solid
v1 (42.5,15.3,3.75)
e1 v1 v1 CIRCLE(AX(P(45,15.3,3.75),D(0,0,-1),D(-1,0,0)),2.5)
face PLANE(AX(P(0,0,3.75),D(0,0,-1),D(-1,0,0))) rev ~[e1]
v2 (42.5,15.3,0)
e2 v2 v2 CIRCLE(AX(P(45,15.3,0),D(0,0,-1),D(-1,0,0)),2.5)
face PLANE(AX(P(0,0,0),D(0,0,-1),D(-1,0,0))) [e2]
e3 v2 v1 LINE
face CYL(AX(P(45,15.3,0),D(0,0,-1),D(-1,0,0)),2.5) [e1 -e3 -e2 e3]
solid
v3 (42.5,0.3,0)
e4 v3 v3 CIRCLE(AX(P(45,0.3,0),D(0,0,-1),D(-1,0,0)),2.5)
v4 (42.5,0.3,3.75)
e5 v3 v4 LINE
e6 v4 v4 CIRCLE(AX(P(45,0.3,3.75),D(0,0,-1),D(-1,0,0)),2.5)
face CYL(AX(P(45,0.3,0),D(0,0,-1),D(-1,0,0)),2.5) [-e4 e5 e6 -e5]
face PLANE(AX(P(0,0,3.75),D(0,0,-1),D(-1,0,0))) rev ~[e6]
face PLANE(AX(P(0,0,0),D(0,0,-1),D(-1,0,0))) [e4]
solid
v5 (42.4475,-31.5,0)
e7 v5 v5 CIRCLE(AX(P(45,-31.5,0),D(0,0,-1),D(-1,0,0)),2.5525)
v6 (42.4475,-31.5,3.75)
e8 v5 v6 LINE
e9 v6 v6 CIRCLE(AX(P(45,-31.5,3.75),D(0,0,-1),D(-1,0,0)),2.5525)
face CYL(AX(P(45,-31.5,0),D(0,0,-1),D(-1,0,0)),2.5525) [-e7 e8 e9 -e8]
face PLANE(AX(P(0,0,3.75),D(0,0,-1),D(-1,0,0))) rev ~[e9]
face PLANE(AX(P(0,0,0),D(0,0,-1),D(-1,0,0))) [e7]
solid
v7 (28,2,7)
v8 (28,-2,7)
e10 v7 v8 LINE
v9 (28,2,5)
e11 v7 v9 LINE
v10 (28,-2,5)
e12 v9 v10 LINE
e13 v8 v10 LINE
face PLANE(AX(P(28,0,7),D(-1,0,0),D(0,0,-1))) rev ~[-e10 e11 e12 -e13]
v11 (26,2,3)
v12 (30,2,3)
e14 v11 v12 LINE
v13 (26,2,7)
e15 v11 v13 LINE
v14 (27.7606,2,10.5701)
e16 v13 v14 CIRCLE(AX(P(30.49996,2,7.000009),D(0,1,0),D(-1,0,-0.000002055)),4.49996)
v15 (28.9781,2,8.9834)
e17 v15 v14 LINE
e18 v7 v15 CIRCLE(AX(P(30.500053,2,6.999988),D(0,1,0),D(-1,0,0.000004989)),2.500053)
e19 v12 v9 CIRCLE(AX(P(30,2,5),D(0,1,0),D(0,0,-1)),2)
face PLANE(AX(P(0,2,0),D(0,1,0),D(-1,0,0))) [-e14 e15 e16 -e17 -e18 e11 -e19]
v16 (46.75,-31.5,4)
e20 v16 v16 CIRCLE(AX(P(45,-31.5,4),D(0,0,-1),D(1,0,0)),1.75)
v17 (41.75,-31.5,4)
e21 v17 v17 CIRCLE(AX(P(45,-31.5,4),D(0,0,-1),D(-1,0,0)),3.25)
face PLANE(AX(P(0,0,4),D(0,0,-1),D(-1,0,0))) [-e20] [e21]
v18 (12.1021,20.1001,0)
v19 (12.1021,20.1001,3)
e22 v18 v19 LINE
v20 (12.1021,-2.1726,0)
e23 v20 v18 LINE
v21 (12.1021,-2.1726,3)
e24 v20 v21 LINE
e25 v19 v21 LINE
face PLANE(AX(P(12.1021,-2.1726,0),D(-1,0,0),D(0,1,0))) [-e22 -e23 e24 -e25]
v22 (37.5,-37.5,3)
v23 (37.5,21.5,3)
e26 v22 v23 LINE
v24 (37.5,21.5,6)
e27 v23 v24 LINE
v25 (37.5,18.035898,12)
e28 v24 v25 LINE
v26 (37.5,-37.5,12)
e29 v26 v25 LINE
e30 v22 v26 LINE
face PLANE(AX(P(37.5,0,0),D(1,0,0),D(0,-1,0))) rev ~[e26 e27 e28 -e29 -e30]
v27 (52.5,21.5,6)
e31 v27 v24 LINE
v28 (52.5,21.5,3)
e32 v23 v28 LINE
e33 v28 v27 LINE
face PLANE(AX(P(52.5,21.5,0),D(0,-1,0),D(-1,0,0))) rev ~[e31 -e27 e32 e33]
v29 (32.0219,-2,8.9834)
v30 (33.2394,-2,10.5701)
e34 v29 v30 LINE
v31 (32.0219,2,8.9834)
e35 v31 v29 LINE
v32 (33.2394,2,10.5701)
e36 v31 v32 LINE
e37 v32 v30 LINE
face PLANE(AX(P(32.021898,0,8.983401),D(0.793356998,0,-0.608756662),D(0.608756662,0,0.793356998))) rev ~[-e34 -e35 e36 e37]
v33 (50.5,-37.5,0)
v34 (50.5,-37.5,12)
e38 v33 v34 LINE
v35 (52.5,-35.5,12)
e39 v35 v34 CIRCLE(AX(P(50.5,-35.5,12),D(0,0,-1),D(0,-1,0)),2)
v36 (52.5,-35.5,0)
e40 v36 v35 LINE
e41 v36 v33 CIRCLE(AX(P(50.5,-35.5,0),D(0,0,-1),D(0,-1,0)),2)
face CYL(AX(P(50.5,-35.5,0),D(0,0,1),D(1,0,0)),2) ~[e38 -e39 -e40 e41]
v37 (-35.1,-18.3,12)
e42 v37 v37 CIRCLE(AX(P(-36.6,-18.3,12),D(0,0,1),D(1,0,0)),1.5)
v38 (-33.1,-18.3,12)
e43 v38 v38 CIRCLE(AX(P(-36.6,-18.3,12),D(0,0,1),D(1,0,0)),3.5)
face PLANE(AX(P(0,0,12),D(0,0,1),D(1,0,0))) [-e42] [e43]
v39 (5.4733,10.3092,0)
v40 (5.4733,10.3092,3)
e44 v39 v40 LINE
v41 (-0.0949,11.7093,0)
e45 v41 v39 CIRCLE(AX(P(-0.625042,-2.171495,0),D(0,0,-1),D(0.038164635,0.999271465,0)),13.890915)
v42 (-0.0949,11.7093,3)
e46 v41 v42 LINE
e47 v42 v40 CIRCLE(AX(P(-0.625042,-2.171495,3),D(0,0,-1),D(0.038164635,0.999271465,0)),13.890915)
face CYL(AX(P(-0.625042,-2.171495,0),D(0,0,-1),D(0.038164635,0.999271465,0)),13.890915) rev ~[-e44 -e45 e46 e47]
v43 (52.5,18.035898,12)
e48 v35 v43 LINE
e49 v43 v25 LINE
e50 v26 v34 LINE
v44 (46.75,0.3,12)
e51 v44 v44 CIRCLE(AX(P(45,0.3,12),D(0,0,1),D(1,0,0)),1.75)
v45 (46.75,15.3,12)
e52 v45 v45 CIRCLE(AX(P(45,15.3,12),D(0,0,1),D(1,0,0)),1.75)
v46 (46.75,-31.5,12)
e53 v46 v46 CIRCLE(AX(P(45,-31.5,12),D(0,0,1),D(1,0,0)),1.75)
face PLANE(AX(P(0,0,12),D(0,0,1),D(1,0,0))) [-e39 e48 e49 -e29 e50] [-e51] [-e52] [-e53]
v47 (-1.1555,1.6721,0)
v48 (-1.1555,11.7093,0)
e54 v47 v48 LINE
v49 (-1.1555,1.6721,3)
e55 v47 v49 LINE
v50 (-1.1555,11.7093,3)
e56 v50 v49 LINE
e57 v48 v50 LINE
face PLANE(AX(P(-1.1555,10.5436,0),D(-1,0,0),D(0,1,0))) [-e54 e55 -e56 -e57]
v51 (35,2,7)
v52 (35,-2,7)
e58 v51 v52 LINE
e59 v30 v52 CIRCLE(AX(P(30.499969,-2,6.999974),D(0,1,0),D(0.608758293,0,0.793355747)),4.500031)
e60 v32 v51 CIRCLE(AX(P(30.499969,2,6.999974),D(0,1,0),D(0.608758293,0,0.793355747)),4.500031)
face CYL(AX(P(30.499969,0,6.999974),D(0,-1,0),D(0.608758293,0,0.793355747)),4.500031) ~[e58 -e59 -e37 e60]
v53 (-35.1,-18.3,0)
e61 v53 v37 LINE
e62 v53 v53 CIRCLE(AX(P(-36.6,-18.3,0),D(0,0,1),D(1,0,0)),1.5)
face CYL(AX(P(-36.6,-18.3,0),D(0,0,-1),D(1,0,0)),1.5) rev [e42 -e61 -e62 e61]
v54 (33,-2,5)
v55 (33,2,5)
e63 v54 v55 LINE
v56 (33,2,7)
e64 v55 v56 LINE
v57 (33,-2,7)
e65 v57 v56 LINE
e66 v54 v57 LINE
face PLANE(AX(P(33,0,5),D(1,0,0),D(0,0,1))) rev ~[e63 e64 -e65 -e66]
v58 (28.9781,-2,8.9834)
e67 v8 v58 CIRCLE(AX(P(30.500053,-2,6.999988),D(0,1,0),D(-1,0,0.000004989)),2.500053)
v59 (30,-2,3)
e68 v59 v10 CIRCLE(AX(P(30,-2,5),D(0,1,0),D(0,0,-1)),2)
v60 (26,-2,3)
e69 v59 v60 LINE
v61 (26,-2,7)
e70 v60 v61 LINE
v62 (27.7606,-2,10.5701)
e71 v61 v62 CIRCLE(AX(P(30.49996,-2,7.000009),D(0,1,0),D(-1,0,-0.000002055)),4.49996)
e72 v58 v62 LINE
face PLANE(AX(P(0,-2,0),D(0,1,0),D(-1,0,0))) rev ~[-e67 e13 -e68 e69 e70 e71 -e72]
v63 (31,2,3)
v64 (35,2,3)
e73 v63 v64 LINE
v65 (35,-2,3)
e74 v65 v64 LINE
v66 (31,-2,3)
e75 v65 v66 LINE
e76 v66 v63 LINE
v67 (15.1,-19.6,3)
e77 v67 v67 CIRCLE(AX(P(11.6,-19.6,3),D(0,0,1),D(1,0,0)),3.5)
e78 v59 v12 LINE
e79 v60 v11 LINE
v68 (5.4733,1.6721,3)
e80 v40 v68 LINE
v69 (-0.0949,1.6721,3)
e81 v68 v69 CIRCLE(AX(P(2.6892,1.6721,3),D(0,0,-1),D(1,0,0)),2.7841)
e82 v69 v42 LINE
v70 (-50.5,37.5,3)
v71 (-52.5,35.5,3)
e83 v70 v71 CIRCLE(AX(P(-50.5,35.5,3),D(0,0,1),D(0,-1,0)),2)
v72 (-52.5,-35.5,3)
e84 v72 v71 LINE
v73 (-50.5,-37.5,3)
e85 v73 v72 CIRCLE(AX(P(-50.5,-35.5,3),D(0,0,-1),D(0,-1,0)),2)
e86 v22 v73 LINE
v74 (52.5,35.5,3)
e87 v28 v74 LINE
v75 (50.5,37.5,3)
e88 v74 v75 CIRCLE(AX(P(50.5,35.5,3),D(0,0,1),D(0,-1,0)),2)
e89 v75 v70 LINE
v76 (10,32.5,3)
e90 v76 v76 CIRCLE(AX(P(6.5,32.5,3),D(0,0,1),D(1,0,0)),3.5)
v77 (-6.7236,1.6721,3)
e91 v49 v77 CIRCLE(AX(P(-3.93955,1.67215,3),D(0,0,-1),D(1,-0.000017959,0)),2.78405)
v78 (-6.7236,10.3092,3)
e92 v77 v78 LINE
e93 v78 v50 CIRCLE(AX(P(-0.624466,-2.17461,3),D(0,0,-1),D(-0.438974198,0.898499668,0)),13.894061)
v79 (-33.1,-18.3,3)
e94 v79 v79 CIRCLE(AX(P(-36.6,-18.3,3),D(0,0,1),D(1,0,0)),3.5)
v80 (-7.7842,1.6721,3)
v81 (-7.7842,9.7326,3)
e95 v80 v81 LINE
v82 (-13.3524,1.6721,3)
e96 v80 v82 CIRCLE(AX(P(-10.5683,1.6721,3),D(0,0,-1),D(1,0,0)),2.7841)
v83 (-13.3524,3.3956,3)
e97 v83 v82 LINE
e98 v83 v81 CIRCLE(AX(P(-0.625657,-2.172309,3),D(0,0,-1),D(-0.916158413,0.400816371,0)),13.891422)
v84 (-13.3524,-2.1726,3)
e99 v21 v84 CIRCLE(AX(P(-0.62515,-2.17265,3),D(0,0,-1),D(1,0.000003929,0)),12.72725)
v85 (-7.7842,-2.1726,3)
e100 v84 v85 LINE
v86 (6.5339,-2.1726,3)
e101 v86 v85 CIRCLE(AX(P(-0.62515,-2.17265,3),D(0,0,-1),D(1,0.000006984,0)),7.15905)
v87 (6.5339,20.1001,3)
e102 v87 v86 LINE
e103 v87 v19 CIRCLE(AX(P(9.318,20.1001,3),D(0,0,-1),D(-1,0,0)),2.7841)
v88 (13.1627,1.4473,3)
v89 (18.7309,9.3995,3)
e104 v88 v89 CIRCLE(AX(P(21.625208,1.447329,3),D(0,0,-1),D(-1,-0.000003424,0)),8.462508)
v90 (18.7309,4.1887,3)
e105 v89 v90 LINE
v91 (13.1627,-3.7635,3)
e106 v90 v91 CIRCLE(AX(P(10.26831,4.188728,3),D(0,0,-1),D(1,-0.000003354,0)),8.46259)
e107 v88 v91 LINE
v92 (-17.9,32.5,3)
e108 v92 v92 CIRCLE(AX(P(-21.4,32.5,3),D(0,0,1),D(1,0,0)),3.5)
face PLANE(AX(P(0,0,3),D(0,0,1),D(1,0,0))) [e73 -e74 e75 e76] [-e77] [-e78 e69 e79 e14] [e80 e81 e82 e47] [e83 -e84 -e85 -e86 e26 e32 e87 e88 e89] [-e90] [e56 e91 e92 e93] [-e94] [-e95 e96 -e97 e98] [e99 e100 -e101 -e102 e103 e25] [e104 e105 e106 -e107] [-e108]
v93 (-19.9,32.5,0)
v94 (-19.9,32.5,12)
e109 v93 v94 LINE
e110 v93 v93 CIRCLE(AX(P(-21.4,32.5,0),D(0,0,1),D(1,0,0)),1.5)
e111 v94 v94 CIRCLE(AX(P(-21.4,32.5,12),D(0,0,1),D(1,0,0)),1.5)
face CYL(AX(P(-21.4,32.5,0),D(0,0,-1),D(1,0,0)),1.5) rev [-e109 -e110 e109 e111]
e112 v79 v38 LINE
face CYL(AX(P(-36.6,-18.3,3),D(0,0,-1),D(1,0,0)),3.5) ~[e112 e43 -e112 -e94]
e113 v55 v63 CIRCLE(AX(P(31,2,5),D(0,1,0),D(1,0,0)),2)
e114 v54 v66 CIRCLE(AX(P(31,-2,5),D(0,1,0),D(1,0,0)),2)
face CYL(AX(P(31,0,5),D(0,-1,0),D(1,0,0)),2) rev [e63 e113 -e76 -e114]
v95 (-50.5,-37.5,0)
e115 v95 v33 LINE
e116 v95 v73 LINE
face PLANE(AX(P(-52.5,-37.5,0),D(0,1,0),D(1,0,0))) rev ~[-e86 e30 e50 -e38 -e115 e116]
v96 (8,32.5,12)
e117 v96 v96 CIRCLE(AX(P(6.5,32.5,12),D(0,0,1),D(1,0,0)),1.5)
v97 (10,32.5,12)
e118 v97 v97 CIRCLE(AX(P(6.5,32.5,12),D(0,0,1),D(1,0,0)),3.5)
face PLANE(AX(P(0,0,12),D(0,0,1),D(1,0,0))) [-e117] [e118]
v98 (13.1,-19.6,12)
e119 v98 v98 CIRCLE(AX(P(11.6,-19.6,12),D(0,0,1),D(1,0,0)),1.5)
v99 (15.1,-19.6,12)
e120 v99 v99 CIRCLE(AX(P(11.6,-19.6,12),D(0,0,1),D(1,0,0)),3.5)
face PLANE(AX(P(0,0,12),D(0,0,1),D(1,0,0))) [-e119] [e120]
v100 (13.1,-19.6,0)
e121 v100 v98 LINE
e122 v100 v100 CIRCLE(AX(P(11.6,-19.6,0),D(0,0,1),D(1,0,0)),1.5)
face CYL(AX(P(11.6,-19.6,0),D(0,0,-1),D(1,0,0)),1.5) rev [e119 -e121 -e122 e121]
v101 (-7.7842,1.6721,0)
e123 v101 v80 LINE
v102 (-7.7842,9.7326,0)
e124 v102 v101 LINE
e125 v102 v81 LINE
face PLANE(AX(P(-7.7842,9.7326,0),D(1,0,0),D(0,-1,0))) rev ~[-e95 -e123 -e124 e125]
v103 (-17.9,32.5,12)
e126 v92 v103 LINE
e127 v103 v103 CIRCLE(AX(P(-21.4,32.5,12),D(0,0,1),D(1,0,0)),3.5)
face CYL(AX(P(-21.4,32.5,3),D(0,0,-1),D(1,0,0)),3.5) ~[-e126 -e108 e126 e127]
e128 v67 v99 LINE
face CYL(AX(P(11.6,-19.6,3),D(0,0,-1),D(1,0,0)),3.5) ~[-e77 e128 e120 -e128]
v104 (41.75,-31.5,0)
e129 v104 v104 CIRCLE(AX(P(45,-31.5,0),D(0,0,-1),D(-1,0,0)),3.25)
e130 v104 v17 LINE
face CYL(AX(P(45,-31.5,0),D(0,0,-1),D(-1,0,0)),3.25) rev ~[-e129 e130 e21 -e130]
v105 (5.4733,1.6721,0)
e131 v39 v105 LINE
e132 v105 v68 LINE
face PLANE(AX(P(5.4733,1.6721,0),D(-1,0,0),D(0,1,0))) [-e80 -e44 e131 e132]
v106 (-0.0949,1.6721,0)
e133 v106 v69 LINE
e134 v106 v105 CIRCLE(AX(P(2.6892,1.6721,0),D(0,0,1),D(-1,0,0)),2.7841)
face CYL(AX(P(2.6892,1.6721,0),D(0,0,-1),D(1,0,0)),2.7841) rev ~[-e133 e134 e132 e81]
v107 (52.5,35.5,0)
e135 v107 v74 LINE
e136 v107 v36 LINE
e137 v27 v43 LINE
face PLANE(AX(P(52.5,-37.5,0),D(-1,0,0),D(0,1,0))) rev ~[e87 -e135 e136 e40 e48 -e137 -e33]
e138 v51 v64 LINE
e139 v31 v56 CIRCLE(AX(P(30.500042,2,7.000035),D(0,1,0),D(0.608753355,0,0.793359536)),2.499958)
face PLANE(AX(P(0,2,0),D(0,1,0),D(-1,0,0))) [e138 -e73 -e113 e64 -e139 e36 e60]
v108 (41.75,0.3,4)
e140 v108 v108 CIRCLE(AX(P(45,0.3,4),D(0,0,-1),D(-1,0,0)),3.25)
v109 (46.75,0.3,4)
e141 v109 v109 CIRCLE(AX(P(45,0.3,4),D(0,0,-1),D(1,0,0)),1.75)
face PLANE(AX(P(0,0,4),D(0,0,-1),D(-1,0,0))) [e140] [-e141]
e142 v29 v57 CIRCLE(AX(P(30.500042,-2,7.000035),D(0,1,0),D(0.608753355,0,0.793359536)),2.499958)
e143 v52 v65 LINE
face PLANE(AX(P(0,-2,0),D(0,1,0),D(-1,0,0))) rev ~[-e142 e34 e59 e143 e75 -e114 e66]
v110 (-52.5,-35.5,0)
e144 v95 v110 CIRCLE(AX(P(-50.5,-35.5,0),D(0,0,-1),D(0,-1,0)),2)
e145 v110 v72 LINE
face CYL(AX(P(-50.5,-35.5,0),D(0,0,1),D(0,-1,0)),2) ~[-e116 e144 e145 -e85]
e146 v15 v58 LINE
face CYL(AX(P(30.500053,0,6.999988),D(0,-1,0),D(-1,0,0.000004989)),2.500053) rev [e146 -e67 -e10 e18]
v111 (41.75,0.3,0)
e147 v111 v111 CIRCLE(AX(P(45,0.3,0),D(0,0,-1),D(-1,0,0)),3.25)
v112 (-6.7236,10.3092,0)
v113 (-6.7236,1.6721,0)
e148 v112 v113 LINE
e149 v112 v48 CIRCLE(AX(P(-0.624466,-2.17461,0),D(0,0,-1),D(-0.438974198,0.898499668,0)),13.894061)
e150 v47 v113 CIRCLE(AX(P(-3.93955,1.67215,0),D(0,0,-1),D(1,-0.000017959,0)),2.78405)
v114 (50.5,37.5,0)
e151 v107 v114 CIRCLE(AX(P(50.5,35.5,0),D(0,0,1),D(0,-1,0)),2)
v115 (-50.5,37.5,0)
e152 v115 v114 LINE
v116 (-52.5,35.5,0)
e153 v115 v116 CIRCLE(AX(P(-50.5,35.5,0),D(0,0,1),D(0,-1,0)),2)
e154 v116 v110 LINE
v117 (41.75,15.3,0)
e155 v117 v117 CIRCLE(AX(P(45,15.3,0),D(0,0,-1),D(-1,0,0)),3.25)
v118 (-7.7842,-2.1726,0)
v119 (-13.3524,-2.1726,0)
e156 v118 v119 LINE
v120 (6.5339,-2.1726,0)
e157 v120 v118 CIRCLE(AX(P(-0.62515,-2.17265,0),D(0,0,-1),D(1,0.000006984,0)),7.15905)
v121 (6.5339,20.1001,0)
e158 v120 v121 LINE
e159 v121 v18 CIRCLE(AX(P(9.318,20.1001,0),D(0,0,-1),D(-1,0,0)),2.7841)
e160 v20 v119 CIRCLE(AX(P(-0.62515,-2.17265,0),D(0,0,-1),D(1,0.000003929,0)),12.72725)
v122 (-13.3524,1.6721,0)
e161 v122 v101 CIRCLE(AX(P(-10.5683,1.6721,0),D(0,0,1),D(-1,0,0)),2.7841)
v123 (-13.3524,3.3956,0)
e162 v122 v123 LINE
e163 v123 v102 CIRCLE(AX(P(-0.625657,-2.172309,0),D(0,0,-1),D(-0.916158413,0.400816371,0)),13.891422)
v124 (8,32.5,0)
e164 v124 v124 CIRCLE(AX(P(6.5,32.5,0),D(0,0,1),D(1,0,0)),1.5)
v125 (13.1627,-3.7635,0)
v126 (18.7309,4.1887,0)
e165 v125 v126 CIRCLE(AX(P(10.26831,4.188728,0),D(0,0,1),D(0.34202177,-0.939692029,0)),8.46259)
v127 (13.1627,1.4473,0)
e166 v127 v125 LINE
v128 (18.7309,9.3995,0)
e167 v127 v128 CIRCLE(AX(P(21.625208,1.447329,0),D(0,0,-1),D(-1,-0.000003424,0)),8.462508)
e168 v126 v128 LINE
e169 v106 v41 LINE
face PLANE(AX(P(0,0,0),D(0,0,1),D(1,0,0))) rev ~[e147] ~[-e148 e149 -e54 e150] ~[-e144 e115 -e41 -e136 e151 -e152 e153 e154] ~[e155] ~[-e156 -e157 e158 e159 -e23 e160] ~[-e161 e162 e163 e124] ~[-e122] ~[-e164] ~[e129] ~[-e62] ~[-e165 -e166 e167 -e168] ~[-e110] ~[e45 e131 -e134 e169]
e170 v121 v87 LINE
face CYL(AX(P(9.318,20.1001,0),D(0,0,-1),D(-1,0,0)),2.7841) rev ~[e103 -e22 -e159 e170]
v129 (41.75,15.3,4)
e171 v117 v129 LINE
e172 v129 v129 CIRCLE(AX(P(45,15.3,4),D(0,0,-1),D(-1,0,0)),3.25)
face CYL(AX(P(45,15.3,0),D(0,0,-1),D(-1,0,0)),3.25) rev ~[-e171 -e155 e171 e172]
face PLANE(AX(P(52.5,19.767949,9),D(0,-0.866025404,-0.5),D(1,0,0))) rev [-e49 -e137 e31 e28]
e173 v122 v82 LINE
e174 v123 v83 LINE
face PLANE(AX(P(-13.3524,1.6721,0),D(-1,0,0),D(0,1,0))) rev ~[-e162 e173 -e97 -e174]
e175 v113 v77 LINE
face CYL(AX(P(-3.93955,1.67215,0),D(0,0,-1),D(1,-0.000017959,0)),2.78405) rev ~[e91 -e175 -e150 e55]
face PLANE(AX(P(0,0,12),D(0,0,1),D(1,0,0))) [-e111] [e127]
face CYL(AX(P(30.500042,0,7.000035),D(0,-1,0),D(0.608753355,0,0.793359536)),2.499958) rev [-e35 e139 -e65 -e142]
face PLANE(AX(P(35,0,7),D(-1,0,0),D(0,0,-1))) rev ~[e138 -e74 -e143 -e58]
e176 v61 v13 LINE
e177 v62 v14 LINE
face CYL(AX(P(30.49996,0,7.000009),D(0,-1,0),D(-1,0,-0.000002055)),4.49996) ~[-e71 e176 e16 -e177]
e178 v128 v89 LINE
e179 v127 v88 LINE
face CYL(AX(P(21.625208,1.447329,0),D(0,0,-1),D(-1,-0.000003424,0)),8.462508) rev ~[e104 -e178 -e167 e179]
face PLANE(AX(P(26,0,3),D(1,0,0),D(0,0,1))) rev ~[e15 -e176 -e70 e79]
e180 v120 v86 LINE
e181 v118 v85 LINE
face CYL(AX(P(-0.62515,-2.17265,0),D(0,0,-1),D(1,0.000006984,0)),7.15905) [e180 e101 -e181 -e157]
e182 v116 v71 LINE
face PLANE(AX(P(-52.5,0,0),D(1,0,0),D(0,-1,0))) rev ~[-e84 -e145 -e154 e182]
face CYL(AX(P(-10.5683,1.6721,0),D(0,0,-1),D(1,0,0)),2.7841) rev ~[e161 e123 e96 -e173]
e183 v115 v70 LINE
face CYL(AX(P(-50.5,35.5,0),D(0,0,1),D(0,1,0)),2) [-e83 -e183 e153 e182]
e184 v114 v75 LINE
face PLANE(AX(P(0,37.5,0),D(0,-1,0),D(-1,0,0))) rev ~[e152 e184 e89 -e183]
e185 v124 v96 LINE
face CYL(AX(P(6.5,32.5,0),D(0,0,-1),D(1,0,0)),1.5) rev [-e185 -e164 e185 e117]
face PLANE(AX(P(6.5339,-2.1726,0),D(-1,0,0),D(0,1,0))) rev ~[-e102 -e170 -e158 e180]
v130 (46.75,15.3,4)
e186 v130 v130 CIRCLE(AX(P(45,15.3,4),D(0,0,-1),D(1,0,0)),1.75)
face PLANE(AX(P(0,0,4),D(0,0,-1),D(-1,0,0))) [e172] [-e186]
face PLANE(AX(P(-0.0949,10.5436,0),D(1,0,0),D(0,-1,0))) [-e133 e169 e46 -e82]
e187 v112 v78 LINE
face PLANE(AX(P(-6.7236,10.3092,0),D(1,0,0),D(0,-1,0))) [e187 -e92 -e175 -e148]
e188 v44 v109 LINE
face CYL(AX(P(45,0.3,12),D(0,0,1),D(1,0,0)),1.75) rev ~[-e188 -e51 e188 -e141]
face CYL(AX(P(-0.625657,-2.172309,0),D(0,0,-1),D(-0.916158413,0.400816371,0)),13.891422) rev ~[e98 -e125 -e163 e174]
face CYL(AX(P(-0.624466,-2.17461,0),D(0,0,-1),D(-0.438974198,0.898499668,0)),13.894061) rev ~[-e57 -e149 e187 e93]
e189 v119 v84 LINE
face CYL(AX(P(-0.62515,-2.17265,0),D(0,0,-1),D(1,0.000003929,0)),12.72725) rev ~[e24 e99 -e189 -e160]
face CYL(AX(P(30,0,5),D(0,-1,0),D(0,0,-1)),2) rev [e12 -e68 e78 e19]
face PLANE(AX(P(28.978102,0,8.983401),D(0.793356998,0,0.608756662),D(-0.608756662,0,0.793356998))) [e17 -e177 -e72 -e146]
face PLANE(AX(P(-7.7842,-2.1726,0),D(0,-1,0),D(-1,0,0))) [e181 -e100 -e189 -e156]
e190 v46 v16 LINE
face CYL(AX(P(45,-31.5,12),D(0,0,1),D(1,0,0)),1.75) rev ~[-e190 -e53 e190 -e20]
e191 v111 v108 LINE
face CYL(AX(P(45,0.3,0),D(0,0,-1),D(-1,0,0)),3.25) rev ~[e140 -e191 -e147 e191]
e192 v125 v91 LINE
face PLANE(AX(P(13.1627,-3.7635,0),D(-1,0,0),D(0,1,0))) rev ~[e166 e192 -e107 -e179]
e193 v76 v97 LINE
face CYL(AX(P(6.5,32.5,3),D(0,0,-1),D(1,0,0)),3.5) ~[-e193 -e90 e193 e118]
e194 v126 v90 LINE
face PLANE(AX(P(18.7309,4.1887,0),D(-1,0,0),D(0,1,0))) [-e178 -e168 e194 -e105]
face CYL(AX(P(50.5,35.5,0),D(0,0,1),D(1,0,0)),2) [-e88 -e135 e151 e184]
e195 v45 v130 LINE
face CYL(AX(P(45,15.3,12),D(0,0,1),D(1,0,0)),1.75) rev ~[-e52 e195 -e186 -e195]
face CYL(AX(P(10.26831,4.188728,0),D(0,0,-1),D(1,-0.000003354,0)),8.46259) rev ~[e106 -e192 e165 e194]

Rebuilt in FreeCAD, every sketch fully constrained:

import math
import FreeCAD as App
import Part
import Sketcher
Q = App.Units.Quantity


def edges_at(feature, points):
    """Names of the edges that pass closest to the given points."""
    edges = feature.Shape.Edges
    near = lambda p: min(range(len(edges)), key=lambda i: edges[i].distToShape(Part.Vertex(*p))[0])
    return sorted({f"Edge{near(p) + 1}" for p in points})

doc = App.newDocument("Part")
body = doc.addObject("PartDesign::Body", "Body")
body.AllowCompound = True

# Sketch on XY plane
sketch1 = body.newObject("Sketcher::SketchObject", "Sketch")
sketch1.AttachmentSupport = (doc.getObject("XY_Plane"), [""])
sketch1.MapMode = "FlatFace"
sketch1.addGeometry([
    Part.LineSegment(App.Vector(-52.5, -37.5, 0), App.Vector(52.5, -37.5, 0)),  # 0
    Part.LineSegment(App.Vector(52.5, -37.5, 0), App.Vector(52.5, 37.5, 0)),  # 1
    Part.LineSegment(App.Vector(52.5, 37.5, 0), App.Vector(-52.5, 37.5, 0)),  # 2
    Part.LineSegment(App.Vector(-52.5, 37.5, 0), App.Vector(-52.5, -37.5, 0)),  # 3
    Part.Circle(App.Vector(-36.6, -18.3, 0), App.Vector(0, 0, 1), 1.5),  # 4
    Part.Circle(App.Vector(-21.4, 32.5, 0), App.Vector(0, 0, 1), 1.5),  # 5
    Part.Circle(App.Vector(11.6, -19.6, 0), App.Vector(0, 0, 1), 1.5),  # 6
    Part.Circle(App.Vector(6.5, 32.5, 0), App.Vector(0, 0, 1), 1.5),  # 7
], False)
sketch1.addConstraint([
    Sketcher.Constraint("Coincident", 0, 2, 1, 1),
    Sketcher.Constraint("Coincident", 1, 2, 2, 1),
    Sketcher.Constraint("Coincident", 2, 2, 3, 1),
    Sketcher.Constraint("Coincident", 3, 2, 0, 1),
    Sketcher.Constraint("Horizontal", 0),
    Sketcher.Constraint("Vertical", 1),
    Sketcher.Constraint("Horizontal", 2),
    Sketcher.Constraint("Vertical", 3),
    Sketcher.Constraint("Equal", 4, 5),
    Sketcher.Constraint("Equal", 5, 6),
    Sketcher.Constraint("Equal", 6, 7),
    Sketcher.Constraint("Symmetric", 0, 2, 2, 2, -1, 1),
    Sketcher.Constraint("Horizontal", 5, 3, 7, 3),
    Sketcher.Constraint("Diameter", 4, 3.0),
    Sketcher.Constraint("DistanceX", 0, 1, 0, 2, 105.0),
    Sketcher.Constraint("DistanceY", 1, 1, 1, 2, 75.0),
    Sketcher.Constraint("DistanceY", 7, 3, 1, 2, 5.0),
    Sketcher.Constraint("DistanceX", 2, 2, 7, 3, 59.0),
    Sketcher.Constraint("DistanceY", 4, 3, 5, 3, 50.8),
    Sketcher.Constraint("DistanceX", 4, 3, 6, 3, 48.2),
    Sketcher.Constraint("DistanceY", 6, 3, 4, 3, 1.3),
    Sketcher.Constraint("DistanceX", 5, 3, 7, 3, 27.9),
    Sketcher.Constraint("DistanceX", 7, 3, 6, 3, 5.1),
])
pad1 = body.newObject("PartDesign::Pad", "Pad")
pad1.Profile = sketch1
pad1.Length = 3

# Sketch on XY plane
sketch2 = body.newObject("Sketcher::SketchObject", "Sketch001")
sketch2.AttachmentSupport = (doc.getObject("XY_Plane"), [""])
sketch2.MapMode = "FlatFace"
sketch2.addGeometry([
    Part.LineSegment(App.Vector(38, -38, 0), App.Vector(52, -38, 0)),
    Part.LineSegment(App.Vector(52, -38, 0), App.Vector(52, 22, 0)),
    Part.LineSegment(App.Vector(52, 22, 0), App.Vector(38, 22, 0)),
    Part.LineSegment(App.Vector(38, 22, 0), App.Vector(38, -38, 0)),
], False)
sketch2.addConstraint([
    Sketcher.Constraint("Coincident", 0, 2, 1, 1),
    Sketcher.Constraint("Coincident", 1, 2, 2, 1),
    Sketcher.Constraint("Coincident", 2, 2, 3, 1),
    Sketcher.Constraint("Coincident", 3, 2, 0, 1),
    Sketcher.Constraint("Horizontal", 0),
    Sketcher.Constraint("Vertical", 1),
    Sketcher.Constraint("Horizontal", 2),
    Sketcher.Constraint("Vertical", 3),
    Sketcher.Constraint("DistanceX", 0, 1, 0, 2, 15.0),
    Sketcher.Constraint("DistanceY", 1, 1, 1, 2, 59.0),
    Sketcher.Constraint("DistanceX", -1, 1, 0, 2, 52.5),
    Sketcher.Constraint("DistanceY", 0, 2, -1, 1, 37.5),
])
pad2 = body.newObject("PartDesign::Pad", "Pad001")
pad2.Profile = sketch2
pad2.Length = 12
doc.recompute()

chamfer = body.newObject("PartDesign::Chamfer", "Chamfer")
chamfer.Base = (pad2, edges_at(pad2, [(45, 21.5, 12)]))
chamfer.ChamferType = "Distance and Angle"
chamfer.Size = 6
chamfer.Angle = 30

# Sketch on XY plane
sketch3 = body.newObject("Sketcher::SketchObject", "Sketch002")
sketch3.AttachmentSupport = (doc.getObject("XY_Plane"), [""])
sketch3.MapMode = "FlatFace"
sketch3.AttachmentOffset = App.Placement(App.Vector(0, 0, 3), App.Rotation())
sketch3.addGeometry([
    Part.Circle(App.Vector(-21.4, 32.5, 0), App.Vector(0, 0, 1), 3.5),  # 0
    Part.Circle(App.Vector(-21.4, 32.5, 0), App.Vector(0, 0, 1), 1.5),  # 1
    Part.Circle(App.Vector(6.5, 32.5, 0), App.Vector(0, 0, 1), 3.5),  # 2
    Part.Circle(App.Vector(6.5, 32.5, 0), App.Vector(0, 0, 1), 1.5),  # 3
    Part.Circle(App.Vector(11.6, -19.6, 0), App.Vector(0, 0, 1), 3.5),  # 4
    Part.Circle(App.Vector(11.6, -19.6, 0), App.Vector(0, 0, 1), 1.5),  # 5
    Part.Circle(App.Vector(-36.6, -18.3, 0), App.Vector(0, 0, 1), 3.5),  # 6
    Part.Circle(App.Vector(-36.6, -18.3, 0), App.Vector(0, 0, 1), 1.5),  # 7
], False)
sketch3.addConstraint([
    Sketcher.Constraint("Coincident", 1, 3, 0, 3),
    Sketcher.Constraint("Coincident", 3, 3, 2, 3),
    Sketcher.Constraint("Coincident", 5, 3, 4, 3),
    Sketcher.Constraint("Coincident", 7, 3, 6, 3),
    Sketcher.Constraint("Equal", 0, 2),
    Sketcher.Constraint("Equal", 1, 3),
    Sketcher.Constraint("Equal", 2, 4),
    Sketcher.Constraint("Equal", 3, 5),
    Sketcher.Constraint("Equal", 4, 6),
    Sketcher.Constraint("Equal", 5, 7),
    Sketcher.Constraint("Horizontal", 1, 3, 2, 3),
    Sketcher.Constraint("Diameter", 0, 7.0),
    Sketcher.Constraint("Diameter", 1, 3.0),
    Sketcher.Constraint("DistanceX", 0, 3, 4, 3, 33.0),
    Sketcher.Constraint("DistanceX", 0, 3, -1, 1, 21.4),
    Sketcher.Constraint("DistanceY", -1, 1, 0, 3, 32.5),
    Sketcher.Constraint("DistanceX", -1, 1, 2, 3, 6.5),
    Sketcher.Constraint("DistanceY", 4, 3, -1, 1, 19.6),
    Sketcher.Constraint("DistanceX", 6, 3, -1, 1, 36.6),
    Sketcher.Constraint("DistanceY", 6, 3, -1, 1, 18.3),
])
pad3 = body.newObject("PartDesign::Pad", "Pad002")
pad3.Profile = sketch3
pad3.Length = 9

# Sketch on XY plane
sketch4 = body.newObject("Sketcher::SketchObject", "Sketch003")
sketch4.AttachmentSupport = (doc.getObject("XY_Plane"), [""])
sketch4.MapMode = "FlatFace"
sketch4.AttachmentOffset = App.Placement(App.Vector(0, 0, 12), App.Rotation())
sketch4.addGeometry([
    Part.Circle(App.Vector(45, -31.5, 0), App.Vector(0, 0, 1), 1.8),
    Part.Circle(App.Vector(45, 0.3, 0), App.Vector(0, 0, 1), 1.8),
    Part.Circle(App.Vector(45, 15.3, 0), App.Vector(0, 0, 1), 1.8),
], False)
sketch4.addConstraint([
    Sketcher.Constraint("Equal", 0, 1),
    Sketcher.Constraint("Equal", 1, 2),
    Sketcher.Constraint("Vertical", 0, 3, 1, 3),
    Sketcher.Constraint("Vertical", 1, 3, 2, 3),
    Sketcher.Constraint("Diameter", 0, 3.5),
    Sketcher.Constraint("DistanceY", 1, 3, 2, 3, 15.0),
    Sketcher.Constraint("DistanceY", 0, 3, 1, 3, 31.8),
    Sketcher.Constraint("DistanceX", -1, 1, 0, 3, 45.0),
    Sketcher.Constraint("DistanceY", 0, 3, -1, 1, 31.5),
])
pocket1 = body.newObject("PartDesign::Pocket", "Pocket")
pocket1.Profile = sketch4
pocket1.Type = "ThroughAll"

# Sketch on XY plane
sketch5 = body.newObject("Sketcher::SketchObject", "Sketch004")
sketch5.AttachmentSupport = (doc.getObject("XY_Plane"), [""])
sketch5.MapMode = "FlatFace"
sketch5.addGeometry([
    Part.ArcOfCircle(Part.Circle(App.Vector(-0.6, -2.2, 0), App.Vector(0, 0, 1), 7.2), math.radians(180), math.radians(360)),  # 0
    Part.LineSegment(App.Vector(6.5, -2.2, 0), App.Vector(6.5, 20.1, 0)),  # 1
    Part.ArcOfCircle(Part.Circle(App.Vector(9.3, 20.1, 0), App.Vector(0, 0, 1), 2.8), math.radians(0), math.radians(180)),  # 2
    Part.LineSegment(App.Vector(12.1, 20.1, 0), App.Vector(12.1, -2.2, 0)),  # 3
    Part.ArcOfCircle(Part.Circle(App.Vector(-0.6, -2.2, 0), App.Vector(0, 0, 1), 12.7), math.radians(180), math.radians(360)),  # 4
    Part.LineSegment(App.Vector(-13.4, -2.2, 0), App.Vector(-7.8, -2.2, 0)),  # 5
    Part.LineSegment(App.Vector(13.2, -3.8, 0), App.Vector(13.2, 1.4, 0)),  # 6
    Part.ArcOfCircle(Part.Circle(App.Vector(21.6, 1.4, 0), App.Vector(0, 0, 1), 8.5), math.radians(110), math.radians(180)),  # 7
    Part.LineSegment(App.Vector(18.7, 9.4, 0), App.Vector(18.7, 4.2, 0)),  # 8
    Part.ArcOfCircle(Part.Circle(App.Vector(10.3, 4.2, 0), App.Vector(0, 0, 1), 8.5), math.radians(-70), math.radians(0)),  # 9
    Part.LineSegment(App.Vector(-0.1, 1.7, 0), App.Vector(-0.1, 11.7, 0)),  # 10
    Part.ArcOfCircle(Part.Circle(App.Vector(-0.6, -2.2, 0), App.Vector(0, 0, 1), 13.9), math.radians(64), math.radians(88)),  # 11
    Part.LineSegment(App.Vector(5.5, 10.3, 0), App.Vector(5.5, 1.7, 0)),  # 12
    Part.ArcOfCircle(Part.Circle(App.Vector(2.7, 1.7, 0), App.Vector(0, 0, 1), 2.8), math.radians(180), math.radians(360)),  # 13
    Part.ArcOfCircle(Part.Circle(App.Vector(-0.6, -2.2, 0), App.Vector(0, 0, 1), 13.9), math.radians(92), math.radians(116)),  # 14
    Part.LineSegment(App.Vector(-1.2, 11.7, 0), App.Vector(-1.2, 1.7, 0)),  # 15
    Part.ArcOfCircle(Part.Circle(App.Vector(-3.9, 1.7, 0), App.Vector(0, 0, 1), 2.8), math.radians(180), math.radians(360)),  # 16
    Part.LineSegment(App.Vector(-6.7, 1.7, 0), App.Vector(-6.7, 10.3, 0)),  # 17
    Part.LineSegment(App.Vector(-13.4, 1.7, 0), App.Vector(-13.4, 3.4, 0)),  # 18
    Part.ArcOfCircle(Part.Circle(App.Vector(-0.6, -2.2, 0), App.Vector(0, 0, 1), 13.9), math.radians(121), math.radians(156)),  # 19
    Part.LineSegment(App.Vector(-7.8, 9.7, 0), App.Vector(-7.8, 1.7, 0)),  # 20
    Part.ArcOfCircle(Part.Circle(App.Vector(-10.6, 1.7, 0), App.Vector(0, 0, 1), 2.8), math.radians(180), math.radians(360)),  # 21
], False)
sketch5.addConstraint([
    Sketcher.Constraint("Tangent", 0, 2, 1, 1),
    Sketcher.Constraint("Tangent", 1, 2, 2, 2),
    Sketcher.Constraint("Tangent", 2, 1, 3, 1),
    Sketcher.Constraint("Tangent", 3, 2, 4, 2),
    Sketcher.Constraint("Coincident", 4, 1, 5, 1),
    Sketcher.Constraint("Coincident", 5, 2, 0, 1),
    Sketcher.Constraint("Tangent", 6, 2, 7, 2),
    Sketcher.Constraint("Coincident", 7, 1, 8, 1),
    Sketcher.Constraint("Tangent", 8, 2, 9, 2),
    Sketcher.Constraint("Coincident", 9, 1, 6, 1),
    Sketcher.Constraint("Coincident", 10, 2, 11, 2),
    Sketcher.Constraint("Coincident", 11, 1, 12, 1),
    Sketcher.Constraint("Tangent", 12, 2, 13, 2),
    Sketcher.Constraint("Tangent", 13, 1, 10, 1),
    Sketcher.Constraint("Coincident", 14, 1, 15, 1),
    Sketcher.Constraint("Tangent", 15, 2, 16, 2),
    Sketcher.Constraint("Tangent", 16, 1, 17, 1),
    Sketcher.Constraint("Coincident", 17, 2, 14, 2),
    Sketcher.Constraint("Coincident", 18, 2, 19, 2),
    Sketcher.Constraint("Coincident", 19, 1, 20, 1),
    Sketcher.Constraint("Tangent", 20, 2, 21, 2),
    Sketcher.Constraint("Tangent", 21, 1, 18, 1),
    Sketcher.Constraint("Vertical", 1),
    Sketcher.Constraint("Vertical", 3),
    Sketcher.Constraint("Horizontal", 5),
    Sketcher.Constraint("Vertical", 6),
    Sketcher.Constraint("Vertical", 8),
    Sketcher.Constraint("Vertical", 10),
    Sketcher.Constraint("Vertical", 12),
    Sketcher.Constraint("Vertical", 15),
    Sketcher.Constraint("Vertical", 17),
    Sketcher.Constraint("Vertical", 18),
    Sketcher.Constraint("Vertical", 20),
    Sketcher.Constraint("Coincident", 4, 3, 0, 3),
    Sketcher.Constraint("Coincident", 19, 3, 0, 3),
    Sketcher.Constraint("Equal", 7, 9),
    Sketcher.Constraint("Equal", 2, 13),
    Sketcher.Constraint("Equal", 13, 16),
    Sketcher.Constraint("Equal", 16, 21),
    Sketcher.Constraint("Horizontal", 13, 3, 16, 3),
    Sketcher.Constraint("Horizontal", 16, 3, 21, 3),
    Sketcher.Constraint("Horizontal", 3, 2, 4, 1),
    Sketcher.Constraint("Horizontal", 10, 2, 14, 1),
    Sketcher.Constraint("Horizontal", 11, 1, 17, 2),
    Sketcher.Constraint("Vertical", 4, 3, 11, 3),
    Sketcher.Constraint("Vertical", 4, 1, 18, 2),
    Sketcher.Constraint("Radius", 0, 7.159),
    Sketcher.Constraint("Radius", 2, 2.784),
    Sketcher.Constraint("DistanceY", 1, 1, 1, 2, 22.2727),
    Sketcher.Constraint("Radius", 11, 13.891),
    Sketcher.Constraint("Radius", 14, 13.894),
    Sketcher.Constraint("Radius", 19, 13.892),
    Sketcher.Constraint("DistanceY", -1, 1, 2, 3, 20.1),
    Sketcher.Constraint("Radius", 7, 8.4626),
    Sketcher.Constraint("DistanceX", 11, 3, 14, 3, 0.0006),
    Sketcher.Constraint("DistanceX", 3, 2, 6, 2, 1.0606),
    Sketcher.Constraint("DistanceX", 6, 2, 7, 1, 5.5682),
    Sketcher.Constraint("DistanceY", 9, 1, 3, 2, 1.5909),
    Sketcher.Constraint("DistanceY", 11, 1, 10, 2, 1.4),
    Sketcher.Constraint("DistanceY", 12, 2, 12, 1, 8.637),
    Sketcher.Constraint("DistanceY", 0, 3, 7, 3, 3.62),
    Sketcher.Constraint("DistanceY", 18, 1, 18, 2, 1.7235),
    Sketcher.Constraint("DistanceX", -1, 1, 2, 3, 9.318),
])
pocket2 = body.newObject("PartDesign::Pocket", "Pocket001")
pocket2.Profile = sketch5
pocket2.Type = "ThroughAll"
pocket2.Reversed = True

# Sketch on XY plane
sketch6 = body.newObject("Sketcher::SketchObject", "Sketch005")
sketch6.AttachmentSupport = (doc.getObject("XY_Plane"), [""])
sketch6.MapMode = "FlatFace"
sketch6.addGeometry([
    Part.Circle(App.Vector(45, 15.3, 0), App.Vector(0, 0, 1), 3.2),  # 0
    Part.Circle(App.Vector(45, 15.3, 0), App.Vector(0, 0, 1), 1.8),  # 1
    Part.Circle(App.Vector(45, 0.3, 0), App.Vector(0, 0, 1), 3.2),  # 2
    Part.Circle(App.Vector(45, 0.3, 0), App.Vector(0, 0, 1), 1.8),  # 3
    Part.Circle(App.Vector(45, -31.5, 0), App.Vector(0, 0, 1), 3.2),  # 4
    Part.Circle(App.Vector(45, -31.5, 0), App.Vector(0, 0, 1), 1.8),  # 5
], False)
sketch6.addConstraint([
    Sketcher.Constraint("Coincident", 1, 3, 0, 3),
    Sketcher.Constraint("Coincident", 3, 3, 2, 3),
    Sketcher.Constraint("Coincident", 5, 3, 4, 3),
    Sketcher.Constraint("Equal", 0, 2),
    Sketcher.Constraint("Equal", 1, 3),
    Sketcher.Constraint("Equal", 2, 4),
    Sketcher.Constraint("Equal", 3, 5),
    Sketcher.Constraint("Vertical", 1, 3, 2, 3),
    Sketcher.Constraint("Vertical", 3, 3, 4, 3),
    Sketcher.Constraint("Diameter", 0, 6.5),
    Sketcher.Constraint("Diameter", 1, 3.5),
    Sketcher.Constraint("DistanceX", -1, 1, 0, 3, 45.0),
    Sketcher.Constraint("DistanceY", 2, 3, 0, 3, 15.0),
    Sketcher.Constraint("DistanceY", -1, 1, 0, 3, 15.3),
    Sketcher.Constraint("DistanceY", 4, 3, -1, 1, 31.5),
])
pocket3 = body.newObject("PartDesign::Pocket", "Pocket002")
pocket3.Profile = sketch6
pocket3.Length = 4
pocket3.Reversed = True
doc.recompute()

fillet = body.newObject("PartDesign::Fillet", "Fillet")
fillet.Base = (pocket3, edges_at(pocket3, [
    (-52.5, -37.5, 1.5),
    (-52.5, 37.5, 1.5),
    (52.5, -37.5, 6),
    (52.5, 37.5, 1.5),
]))
fillet.Radius = 2

# Sketch on XZ plane
sketch7 = body.newObject("Sketcher::SketchObject", "Sketch006")
sketch7.AttachmentSupport = (doc.getObject("XZ_Plane"), [""])
sketch7.MapMode = "FlatFace"
sketch7.addGeometry([
    Part.LineSegment(App.Vector(35, 7, 0), App.Vector(35, 3, 0)),  # 0
    Part.LineSegment(App.Vector(35, 3, 0), App.Vector(31, 3, 0)),  # 1
    Part.ArcOfCircle(Part.Circle(App.Vector(31, 5, 0), App.Vector(0, 0, 1), 2), math.radians(-90), math.radians(0)),  # 2
    Part.LineSegment(App.Vector(33, 5, 0), App.Vector(33, 7, 0)),  # 3
    Part.ArcOfCircle(Part.Circle(App.Vector(30.5, 7, 0), App.Vector(0, 0, 1), 2.5), math.radians(0), math.radians(53)),  # 4
    Part.LineSegment(App.Vector(32, 9, 0), App.Vector(33.2, 10.6, 0)),  # 5
    Part.ArcOfCircle(Part.Circle(App.Vector(30.5, 7, 0), App.Vector(0, 0, 1), 4.5), math.radians(0), math.radians(53)),  # 6
    Part.ArcOfCircle(Part.Circle(App.Vector(30, 5, 0), App.Vector(0, 0, 1), 2), math.radians(180), math.radians(270)),  # 7
    Part.LineSegment(App.Vector(30, 3, 0), App.Vector(26, 3, 0)),  # 8
    Part.LineSegment(App.Vector(26, 3, 0), App.Vector(26, 7, 0)),  # 9
    Part.ArcOfCircle(Part.Circle(App.Vector(30.5, 7, 0), App.Vector(0, 0, 1), 4.5), math.radians(127), math.radians(180)),  # 10
    Part.LineSegment(App.Vector(27.8, 10.6, 0), App.Vector(29, 9, 0)),  # 11
    Part.ArcOfCircle(Part.Circle(App.Vector(30.5, 7, 0), App.Vector(0, 0, 1), 2.5), math.radians(127), math.radians(180)),  # 12
    Part.LineSegment(App.Vector(28, 7, 0), App.Vector(28, 5, 0)),  # 13
], False)
sketch7.addConstraint([
    Sketcher.Constraint("Coincident", 0, 2, 1, 1),
    Sketcher.Constraint("Tangent", 1, 2, 2, 1),
    Sketcher.Constraint("Tangent", 2, 2, 3, 1),
    Sketcher.Constraint("Tangent", 3, 2, 4, 1),
    Sketcher.Constraint("Coincident", 4, 2, 5, 1),
    Sketcher.Constraint("Coincident", 5, 2, 6, 2),
    Sketcher.Constraint("Tangent", 6, 1, 0, 1),
    Sketcher.Constraint("Tangent", 7, 2, 8, 1),
    Sketcher.Constraint("Coincident", 8, 2, 9, 1),
    Sketcher.Constraint("Tangent", 9, 2, 10, 2),
    Sketcher.Constraint("Coincident", 10, 1, 11, 1),
    Sketcher.Constraint("Coincident", 11, 2, 12, 1),
    Sketcher.Constraint("Tangent", 12, 2, 13, 1),
    Sketcher.Constraint("Tangent", 13, 2, 7, 1),
    Sketcher.Constraint("Vertical", 0),
    Sketcher.Constraint("Horizontal", 1),
    Sketcher.Constraint("Vertical", 3),
    Sketcher.Constraint("Horizontal", 8),
    Sketcher.Constraint("Vertical", 9),
    Sketcher.Constraint("Vertical", 13),
    Sketcher.Constraint("Coincident", 6, 3, 4, 3),
    Sketcher.Constraint("Coincident", 10, 3, 4, 3),
    Sketcher.Constraint("Coincident", 12, 3, 4, 3),
    Sketcher.Constraint("Equal", 2, 7),
    Sketcher.Constraint("Equal", 6, 10),
    Sketcher.Constraint("Equal", 4, 12),
    Sketcher.Constraint("Horizontal", 2, 3, 7, 3),
    Sketcher.Constraint("Horizontal", 5, 2, 10, 1),
    Sketcher.Constraint("Horizontal", 4, 2, 11, 2),
    Sketcher.Constraint("Equal", 8, 0),
    Sketcher.Constraint("Radius", 2, 2.0),
    Sketcher.Constraint("Radius", 4, 2.5),
    Sketcher.Constraint("DistanceX", 1, 2, 1, 1, 4.0),
    Sketcher.Constraint("DistanceY", -1, 1, 2, 3, 5.0),
    Sketcher.Constraint("DistanceX", -1, 1, 2, 3, 31.0),
    Sketcher.Constraint("Angle", 5, Q("52.5003 deg")),
    Sketcher.Constraint("DistanceY", -1, 1, 5, 2, 10.57),
])
pad4 = body.newObject("PartDesign::Pad", "Pad003")
pad4.Profile = sketch7
pad4.Length = 4
pad4.Midplane = True

# Sketch on XY plane
sketch8 = body.newObject("Sketcher::SketchObject", "Sketch007")
sketch8.AttachmentSupport = (doc.getObject("XY_Plane"), [""])
sketch8.MapMode = "FlatFace"
sketch8.addGeometry([
    Part.Circle(App.Vector(45, 15.3, 0), App.Vector(0, 0, 1), 2.5),
    Part.Circle(App.Vector(45, 0.3, 0), App.Vector(0, 0, 1), 2.5),
    Part.Circle(App.Vector(45, -31.5, 0), App.Vector(0, 0, 1), 2.6),
], False)
sketch8.addConstraint([
    Sketcher.Constraint("Equal", 0, 1),
    Sketcher.Constraint("Vertical", 0, 3, 1, 3),
    Sketcher.Constraint("Vertical", 1, 3, 2, 3),
    Sketcher.Constraint("Diameter", 0, 5.0),
    Sketcher.Constraint("Diameter", 2, 5.105),
    Sketcher.Constraint("DistanceX", -1, 1, 0, 3, 45.0),
    Sketcher.Constraint("DistanceY", 1, 3, 0, 3, 15.0),
    Sketcher.Constraint("DistanceY", -1, 1, 0, 3, 15.3),
    Sketcher.Constraint("DistanceY", 2, 3, -1, 1, 31.5),
])
pad5 = body.newObject("PartDesign::Pad", "Pad004")
pad5.Profile = sketch8
pad5.Length = 3.75

doc.recompute()
